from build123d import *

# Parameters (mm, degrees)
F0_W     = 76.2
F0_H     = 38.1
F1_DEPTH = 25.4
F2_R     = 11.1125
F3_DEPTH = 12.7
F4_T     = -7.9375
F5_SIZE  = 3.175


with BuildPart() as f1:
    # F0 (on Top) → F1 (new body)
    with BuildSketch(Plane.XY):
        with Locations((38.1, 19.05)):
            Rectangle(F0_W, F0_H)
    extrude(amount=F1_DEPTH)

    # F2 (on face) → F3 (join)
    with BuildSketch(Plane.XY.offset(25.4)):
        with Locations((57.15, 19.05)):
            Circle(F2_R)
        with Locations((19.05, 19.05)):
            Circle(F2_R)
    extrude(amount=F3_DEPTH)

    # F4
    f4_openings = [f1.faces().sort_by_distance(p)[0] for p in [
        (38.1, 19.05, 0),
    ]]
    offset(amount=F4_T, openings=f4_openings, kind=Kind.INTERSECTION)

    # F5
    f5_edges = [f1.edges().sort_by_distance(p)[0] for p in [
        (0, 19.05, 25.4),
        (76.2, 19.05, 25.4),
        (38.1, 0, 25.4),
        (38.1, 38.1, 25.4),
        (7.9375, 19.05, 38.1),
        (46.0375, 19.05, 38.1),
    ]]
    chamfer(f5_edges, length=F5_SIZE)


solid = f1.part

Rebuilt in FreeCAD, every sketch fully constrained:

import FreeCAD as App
import Part
import Sketcher
from FreeCAD import Vector
Q = App.Units.Quantity


def edges_at(feature, points):
    """Names of the edges that pass closest to the given points."""
    edges = feature.Shape.Edges
    near = lambda p: min(range(len(edges)), key=lambda i: edges[i].distToShape(Part.Vertex(*p))[0])
    return sorted({f"Edge{near(p) + 1}" for p in points})


def faces_at(feature, points):
    """Names of the faces that lie closest to the given points."""
    faces = feature.Shape.Faces
    near = lambda p: min(range(len(faces)), key=lambda i: faces[i].distToShape(Part.Vertex(*p))[0])
    return sorted({f"Face{near(p) + 1}" for p in points})

doc = App.newDocument("Part")
body = doc.addObject("PartDesign::Body", "Body")

# Sketch on XY plane
sketch1 = body.newObject("Sketcher::SketchObject", "Sketch")
sketch1.AttachmentSupport = (doc.getObject("XY_Plane"), [""])
sketch1.MapMode = "FlatFace"
sketch1.addGeometry(Part.LineSegment(Vector(0, 38, 0), Vector(0, 0, 0)), False)
sketch1.addGeometry(Part.LineSegment(Vector(0, 0, 0), Vector(76, 0, 0)), False)
sketch1.addGeometry(Part.LineSegment(Vector(76, 0, 0), Vector(76, 38, 0)), False)
sketch1.addGeometry(Part.LineSegment(Vector(76, 38, 0), Vector(0, 38, 0)), False)
sketch1.addConstraint(Sketcher.Constraint("Coincident", 0, 2, 1, 1))
sketch1.addConstraint(Sketcher.Constraint("Coincident", 1, 2, 2, 1))
sketch1.addConstraint(Sketcher.Constraint("Coincident", 2, 2, 3, 1))
sketch1.addConstraint(Sketcher.Constraint("Coincident", 3, 2, 0, 1))
sketch1.addConstraint(Sketcher.Constraint("Vertical", 0))
sketch1.addConstraint(Sketcher.Constraint("Horizontal", 1))
sketch1.addConstraint(Sketcher.Constraint("Vertical", 2))
sketch1.addConstraint(Sketcher.Constraint("Horizontal", 3))
sketch1.addConstraint(Sketcher.Constraint("Coincident", 0, 2, -1, 1))
sketch1.addConstraint(Sketcher.Constraint("DistanceX", 1, 1, 1, 2, Q("3 in")))
sketch1.addConstraint(Sketcher.Constraint("DistanceY", 0, 2, 0, 1, Q("1.5 in")))
pad1 = body.newObject("PartDesign::Pad", "Pad")
pad1.Profile = sketch1
pad1.Length = Q("1 in")

# Sketch on XY plane
sketch2 = body.newObject("Sketcher::SketchObject", "Sketch001")
sketch2.AttachmentSupport = (doc.getObject("XY_Plane"), [""])
sketch2.MapMode = "FlatFace"
sketch2.AttachmentOffset = App.Placement(Vector(0, 0, 1 * 25.4), App.Rotation())
sketch2.addGeometry(Part.Circle(Vector(57, 19, 0), Vector(0, 0, 1), 11), False)
sketch2.addGeometry(Part.Circle(Vector(19, 19, 0), Vector(0, 0, 1), 11), False)
sketch2.addConstraint(Sketcher.Constraint("Equal", 0, 1))
sketch2.addConstraint(Sketcher.Constraint("Horizontal", 0, 3, 1, 3))
sketch2.addConstraint(Sketcher.Constraint("Diameter", 0, Q("0.875 in")))
sketch2.addConstraint(Sketcher.Constraint("DistanceX", 1, 3, 0, 3, Q("1.5 in")))
sketch2.addConstraint(Sketcher.Constraint("DistanceX", -1, 1, 0, 3, Q("2.25 in")))
sketch2.addConstraint(Sketcher.Constraint("DistanceY", -1, 1, 0, 3, Q("0.75 in")))
pad2 = body.newObject("PartDesign::Pad", "Pad001")
pad2.Profile = sketch2
pad2.Length = Q("0.5 in")
doc.recompute()

thickness = body.newObject("PartDesign::Thickness", "Thickness")
thickness.Base = (pad2, faces_at(pad2, [(38.1, 19.05, 0)]))
thickness.Value = Q("0.3125 in")
thickness.Reversed = True
thickness.Join = "Intersection"
doc.recompute()

chamfer = body.newObject("PartDesign::Chamfer", "Chamfer")
chamfer.Base = (thickness, edges_at(thickness, [
    (0, 19.05, 25.4),
    (76.2, 19.05, 25.4),
    (38.1, 0, 25.4),
    (38.1, 38.1, 25.4),
    (7.938, 19.05, 38.1),
    (46.038, 19.05, 38.1),
]))
chamfer.Size = Q("0.125 in")

doc.recompute()
